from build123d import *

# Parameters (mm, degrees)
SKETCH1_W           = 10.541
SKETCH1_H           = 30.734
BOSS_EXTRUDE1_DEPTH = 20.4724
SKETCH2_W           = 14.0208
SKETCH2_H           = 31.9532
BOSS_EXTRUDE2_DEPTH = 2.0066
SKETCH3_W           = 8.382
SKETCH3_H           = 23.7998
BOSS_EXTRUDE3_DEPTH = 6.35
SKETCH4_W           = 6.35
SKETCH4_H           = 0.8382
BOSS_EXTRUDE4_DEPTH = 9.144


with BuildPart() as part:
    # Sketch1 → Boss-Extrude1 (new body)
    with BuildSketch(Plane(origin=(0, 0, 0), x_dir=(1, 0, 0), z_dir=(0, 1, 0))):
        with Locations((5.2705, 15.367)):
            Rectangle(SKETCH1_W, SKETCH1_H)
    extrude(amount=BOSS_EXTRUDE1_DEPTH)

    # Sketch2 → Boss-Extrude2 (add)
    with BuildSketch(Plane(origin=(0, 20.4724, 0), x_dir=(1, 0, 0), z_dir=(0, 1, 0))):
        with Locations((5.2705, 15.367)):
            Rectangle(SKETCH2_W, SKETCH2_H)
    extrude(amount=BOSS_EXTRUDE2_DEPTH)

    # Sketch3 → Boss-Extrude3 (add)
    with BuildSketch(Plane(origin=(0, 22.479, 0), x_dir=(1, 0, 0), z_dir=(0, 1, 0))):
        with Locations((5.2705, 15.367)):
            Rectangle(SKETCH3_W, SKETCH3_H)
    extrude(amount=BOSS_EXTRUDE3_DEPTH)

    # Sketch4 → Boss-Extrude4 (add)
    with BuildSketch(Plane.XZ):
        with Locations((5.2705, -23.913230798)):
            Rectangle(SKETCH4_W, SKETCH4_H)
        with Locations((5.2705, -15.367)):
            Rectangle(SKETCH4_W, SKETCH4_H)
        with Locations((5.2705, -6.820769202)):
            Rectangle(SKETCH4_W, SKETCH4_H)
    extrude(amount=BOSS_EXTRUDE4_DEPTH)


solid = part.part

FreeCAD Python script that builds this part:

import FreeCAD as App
import Part
import Sketcher
from FreeCAD import Vector
Q = App.Units.Quantity


def add_polygon(sketch, points):
    """Adds a closed chain of lines whose ends are joined by coincident constraints."""
    first, n = sketch.GeometryCount, len(points)
    for a, b in zip(points, points[1:] + points[:1]):
        sketch.addGeometry(Part.LineSegment(App.Vector(*a, 0), App.Vector(*b, 0)), False)
    for i in range(n):
        sketch.addConstraint(Sketcher.Constraint("Coincident", first + i, 2, first + (i + 1) % n, 1))

doc = App.newDocument("Part")
body = doc.addObject("PartDesign::Body", "Body")

sketch1 = body.newObject("Sketcher::SketchObject", "Sketch")
sketch1.AttachmentSupport = (doc.getObject("XZ_Plane"), [""])
sketch1.MapMode = "FlatFace"
add_polygon(sketch1, [(0, -30.734), (0, 0), (10.541, 0), (10.541, -30.734)])
sketch1.addConstraint([
    Sketcher.Constraint("Vertical", 0),
    Sketcher.Constraint("Horizontal", 1),
    Sketcher.Constraint("Vertical", 2),
    Sketcher.Constraint("Horizontal", 3),
    Sketcher.Constraint("Coincident", 0, 2, -1, 1),
    Sketcher.Constraint("DistanceY", 0, 1, 0, 2, Q("1.21 in")),
    Sketcher.Constraint("DistanceX", 1, 1, 1, 2, Q("0.415 in")),
])
pad1 = body.newObject("PartDesign::Pad", "Pad")
pad1.Profile = sketch1
pad1.Length = Q("0.806 in")
pad1.Reversed = True

sketch2 = body.newObject("Sketcher::SketchObject", "Sketch001")
sketch2.AttachmentSupport = (doc.getObject("XZ_Plane"), [""])
sketch2.MapMode = "FlatFace"
sketch2.AttachmentOffset = App.Placement(Vector(0, 0, -0.806 * 25.4), App.Rotation())
add_polygon(sketch2, [(-1.7399, -31.3436), (-1.7399, 0.6096), (12.2809, 0.6096), (12.2809, -31.3436)])
sketch2.addConstraint([
    Sketcher.Constraint("Vertical", 0),
    Sketcher.Constraint("Horizontal", 1),
    Sketcher.Constraint("Vertical", 2),
    Sketcher.Constraint("Horizontal", 3),
    Sketcher.Constraint("DistanceX", 1, 1, 1, 2, Q("0.552 in")),
    Sketcher.Constraint("DistanceY", 0, 1, 0, 2, Q("1.258 in")),
    Sketcher.Constraint("DistanceY", -1, 1, 0, 2, Q("0.024 in")),
    Sketcher.Constraint("DistanceX", 0, 2, -1, 1, Q("0.0685 in")),
])
pad2 = body.newObject("PartDesign::Pad", "Pad001")
pad2.Profile = sketch2
pad2.Length = Q("0.079 in")
pad2.Reversed = True

sketch3 = body.newObject("Sketcher::SketchObject", "Sketch002")
sketch3.AttachmentSupport = (doc.getObject("XZ_Plane"), [""])
sketch3.MapMode = "FlatFace"
sketch3.AttachmentOffset = App.Placement(Vector(0, 0, -0.885 * 25.4), App.Rotation())
add_polygon(sketch3, [(1.0795, -27.2669), (1.0795, -3.4671), (9.4615, -3.4671), (9.4615, -27.2669)])
sketch3.addConstraint([
    Sketcher.Constraint("Vertical", 0),
    Sketcher.Constraint("Horizontal", 1),
    Sketcher.Constraint("Vertical", 2),
    Sketcher.Constraint("Horizontal", 3),
    Sketcher.Constraint("DistanceX", 1, 1, 1, 2, Q("0.33 in")),
    Sketcher.Constraint("DistanceY", 0, 1, 0, 2, Q("0.937 in")),
    Sketcher.Constraint("DistanceX", -1, 1, 0, 2, Q("0.0425 in")),
    Sketcher.Constraint("DistanceY", 0, 2, -1, 1, Q("0.1365 in")),
])
pad3 = body.newObject("PartDesign::Pad", "Pad002")
pad3.Profile = sketch3
pad3.Length = Q("0.25 in")
pad3.Reversed = True

sketch4 = body.newObject("Sketcher::SketchObject", "Sketch003")
sketch4.AttachmentSupport = (doc.getObject("XZ_Plane"), [""])
sketch4.MapMode = "FlatFace"
add_polygon(sketch4, [(2.0955, -23.494131), (2.0955, -24.332331), (8.4455, -24.332331), (8.4455, -23.494131)])
add_polygon(sketch4, [(2.0955, -14.9479), (2.0955, -15.7861), (8.4455, -15.7861), (8.4455, -14.9479)])
add_polygon(sketch4, [(2.0955, -6.401669), (2.0955, -7.239869), (8.4455, -7.239869), (8.4455, -6.401669)])
sketch4.addConstraint([
    Sketcher.Constraint("Vertical", 0),
    Sketcher.Constraint("Horizontal", 1),
    Sketcher.Constraint("Vertical", 2),
    Sketcher.Constraint("Horizontal", 3),
    Sketcher.Constraint("Vertical", 4),
    Sketcher.Constraint("Horizontal", 5),
    Sketcher.Constraint("Vertical", 6),
    Sketcher.Constraint("Horizontal", 7),
    Sketcher.Constraint("Vertical", 8),
    Sketcher.Constraint("Horizontal", 9),
    Sketcher.Constraint("Vertical", 10),
    Sketcher.Constraint("Horizontal", 11),
    Sketcher.Constraint("Vertical", 3, 2, 4, 2),
    Sketcher.Constraint("Vertical", 2, 2, 5, 2),
    Sketcher.Constraint("Vertical", 7, 2, 8, 2),
    Sketcher.Constraint("Vertical", 6, 2, 9, 2),
    Sketcher.Constraint("Equal", 2, 4),
    Sketcher.Constraint("Equal", 6, 8),
    Sketcher.Constraint("DistanceX", 1, 1, 1, 2, Q("0.25 in")),
    Sketcher.Constraint("DistanceY", 0, 2, 0, 1, Q("0.033 in")),
    Sketcher.Constraint("DistanceX", -1, 1, 0, 2, Q("0.0825 in")),
    Sketcher.Constraint("DistanceY", 4, 2, -1, 1, Q("0.6215 in")),
    Sketcher.Constraint("DistanceY", 0, 2, -1, 1, 24.332331),
    Sketcher.Constraint("DistanceY", 8, 2, -1, 1, 7.239869),
])
pad4 = body.newObject("PartDesign::Pad", "Pad003")
pad4.Profile = sketch4
pad4.Length = Q("0.36 in")

doc.recompute()
